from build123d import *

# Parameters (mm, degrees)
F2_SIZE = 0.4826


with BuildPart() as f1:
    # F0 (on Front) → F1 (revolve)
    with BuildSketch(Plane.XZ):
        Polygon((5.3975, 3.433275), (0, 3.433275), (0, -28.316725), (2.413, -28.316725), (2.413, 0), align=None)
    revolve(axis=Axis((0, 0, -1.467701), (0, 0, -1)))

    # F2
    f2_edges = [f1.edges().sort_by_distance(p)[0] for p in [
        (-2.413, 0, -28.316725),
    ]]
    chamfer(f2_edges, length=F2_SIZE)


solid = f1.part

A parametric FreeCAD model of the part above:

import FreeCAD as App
import Part
import Sketcher

V = App.Vector
Q = App.Units.Quantity


def edges_at(feature, points):
    """Names of the edges that pass closest to the given points."""
    edges = feature.Shape.Edges
    near = lambda p: min(range(len(edges)), key=lambda i: edges[i].distToShape(Part.Vertex(*p))[0])
    return sorted({f"Edge{near(p) + 1}" for p in points})


def add_polygon(sketch, points):
    """Adds a closed chain of lines whose ends are joined by coincident constraints."""
    first, n = sketch.GeometryCount, len(points)
    for a, b in zip(points, points[1:] + points[:1]):
        sketch.addGeometry(Part.LineSegment(App.Vector(*a, 0), App.Vector(*b, 0)), False)
    for i in range(n):
        sketch.addConstraint(Sketcher.Constraint("Coincident", first + i, 2, first + (i + 1) % n, 1))

doc = App.newDocument("Part")
body = doc.addObject("PartDesign::Body", "Body")

# Sketch on XZ plane
sketch1 = body.newObject("Sketcher::SketchObject", "Sketch")
sketch1.AttachmentSupport = (doc.getObject("XZ_Plane"), [""])
sketch1.MapMode = "FlatFace"
add_polygon(sketch1, [(5.4, 3.4), (0, 3.4), (0, -28.3), (2.4, -28.3), (2.4, 0)])  # lines 0-4
sketch1.addConstraint(Sketcher.Constraint("Horizontal", 0))
sketch1.addConstraint(Sketcher.Constraint("Vertical", 1))
sketch1.addConstraint(Sketcher.Constraint("Horizontal", 2))
sketch1.addConstraint(Sketcher.Constraint("Vertical", 3))
sketch1.addConstraint(Sketcher.Constraint("PointOnObject", 0, 2, -2))
sketch1.addConstraint(Sketcher.Constraint("PointOnObject", 3, 2, -1))
sketch1.addConstraint(Sketcher.Constraint("Angle", 4, Q("49.000004 deg")))
sketch1.addConstraint(Sketcher.Constraint("DistanceY", 1, 2, 1, 1, Q("1.25 in")))
sketch1.addConstraint(Sketcher.Constraint("DistanceX", 2, 1, 2, 2, Q("0.095 in")))
sketch1.addConstraint(Sketcher.Constraint("DistanceX", 0, 2, 0, 1, Q("0.2125 in")))
revolution = body.newObject("PartDesign::Revolution", "Revolution")
revolution.Profile = sketch1
revolution.ReferenceAxis = (sketch1, ["V_Axis"])
revolution.Angle = 360
doc.recompute()

chamfer = body.newObject("PartDesign::Chamfer", "Chamfer")
chamfer.Base = (revolution, edges_at(revolution, [(-2.413, 0, -28.317)]))
chamfer.Size = Q("0.019 in")

doc.recompute()
